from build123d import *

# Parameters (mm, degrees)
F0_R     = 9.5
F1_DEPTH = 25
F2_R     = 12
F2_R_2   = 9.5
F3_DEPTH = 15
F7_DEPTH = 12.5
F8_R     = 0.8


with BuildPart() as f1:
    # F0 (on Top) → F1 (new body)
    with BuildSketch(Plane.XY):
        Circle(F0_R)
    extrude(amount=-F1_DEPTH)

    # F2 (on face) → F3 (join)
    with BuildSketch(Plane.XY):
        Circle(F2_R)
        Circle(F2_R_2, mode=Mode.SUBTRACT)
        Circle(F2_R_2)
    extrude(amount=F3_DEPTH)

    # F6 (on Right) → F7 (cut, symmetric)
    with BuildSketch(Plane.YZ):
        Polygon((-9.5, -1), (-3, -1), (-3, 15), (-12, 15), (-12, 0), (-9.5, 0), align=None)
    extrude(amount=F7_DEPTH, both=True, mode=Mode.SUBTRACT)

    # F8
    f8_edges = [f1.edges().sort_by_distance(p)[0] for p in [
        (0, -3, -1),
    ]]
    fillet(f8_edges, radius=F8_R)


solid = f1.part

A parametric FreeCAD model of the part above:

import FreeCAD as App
import Part
import Sketcher

V = App.Vector


def edges_at(feature, points):
    """Names of the edges that pass closest to the given points."""
    edges = feature.Shape.Edges
    near = lambda p: min(range(len(edges)), key=lambda i: edges[i].distToShape(Part.Vertex(*p))[0])
    return sorted({f"Edge{near(p) + 1}" for p in points})

doc = App.newDocument("Part")
body = doc.addObject("PartDesign::Body", "Body")

# Sketch on XY plane
sketch1 = doc.addObject("Sketcher::SketchObject", "Sketch")
body.addObject(sketch1)
sketch1.AttachmentSupport = (doc.XY_Plane, [""])
sketch1.MapMode = "FlatFace"
sketch1.addGeometry(Part.Circle(V(0, 0, 0), V(0, 0, 1), 10), False)
sketch1.addConstraint([
    Sketcher.Constraint("Coincident", 0, 3, -1, 1),
    Sketcher.Constraint("Diameter", 0, 19.0),
])
pad1 = doc.addObject("PartDesign::Pad", "Pad")
body.addObject(pad1)
pad1.Profile = sketch1
pad1.Length = 25
pad1.Reversed = True

# Sketch on XY plane
sketch2 = doc.addObject("Sketcher::SketchObject", "Sketch001")
body.addObject(sketch2)
sketch2.AttachmentSupport = (doc.XY_Plane, [""])
sketch2.MapMode = "FlatFace"
sketch2.addGeometry(Part.Circle(V(0, 0, 0), V(0, 0, 1), 12), False)
sketch2.addConstraint([
    Sketcher.Constraint("Coincident", 0, 3, -1, 1),
    Sketcher.Constraint("Diameter", 0, 24.0),
])
pad2 = doc.addObject("PartDesign::Pad", "Pad001")
body.addObject(pad2)
pad2.Profile = sketch2
pad2.Length = 15

# Sketch on YZ plane
sketch3 = doc.addObject("Sketcher::SketchObject", "Sketch002")
body.addObject(sketch3)
sketch3.AttachmentSupport = (doc.YZ_Plane, [""])
sketch3.MapMode = "FlatFace"
sketch3.addGeometry([
    Part.LineSegment(V(-9.5, -1, 0), V(-3, -1, 0)),  # 0
    Part.LineSegment(V(-3, -1, 0), V(-3, 15, 0)),  # 1
    Part.LineSegment(V(-3, 15, 0), V(-12, 15, 0)),  # 2
    Part.LineSegment(V(-12, 15, 0), V(-12, 0, 0)),  # 3
    Part.LineSegment(V(-12, 0, 0), V(-9.5, 0, 0)),  # 4
    Part.LineSegment(V(-9.5, 0, 0), V(-9.5, -1, 0)),  # 5
], False)
sketch3.addConstraint([
    Sketcher.Constraint("Coincident", 0, 2, 1, 1),
    Sketcher.Constraint("Coincident", 1, 2, 2, 1),
    Sketcher.Constraint("Coincident", 2, 2, 3, 1),
    Sketcher.Constraint("Coincident", 3, 2, 4, 1),
    Sketcher.Constraint("Coincident", 4, 2, 5, 1),
    Sketcher.Constraint("Coincident", 5, 2, 0, 1),
    Sketcher.Constraint("Horizontal", 0),
    Sketcher.Constraint("Vertical", 1),
    Sketcher.Constraint("Horizontal", 2),
    Sketcher.Constraint("Vertical", 3),
    Sketcher.Constraint("Horizontal", 4),
    Sketcher.Constraint("Vertical", 5),
    Sketcher.Constraint("PointOnObject", 3, 2, -1),
    Sketcher.Constraint("DistanceX", 2, 2, 2, 1, 9.0),
    Sketcher.Constraint("DistanceY", 1, 1, 1, 2, 16.0),
    Sketcher.Constraint("DistanceY", 3, 2, 3, 1, 15.0),
    Sketcher.Constraint("DistanceX", 0, 1, 0, 2, 6.5),
    Sketcher.Constraint("DistanceX", 0, 2, -1, 1, 3.0),
])
pocket1 = doc.addObject("PartDesign::Pocket", "Pocket")
body.addObject(pocket1)
pocket1.Profile = sketch3
pocket1.Length = 25
pocket1.Midplane = True
doc.recompute()

fillet = doc.addObject("PartDesign::Fillet", "Fillet")
body.addObject(fillet)
fillet.Base = (pocket1, edges_at(pocket1, [(0, -3, -1)]))
fillet.Radius = 0.8

doc.recompute()
